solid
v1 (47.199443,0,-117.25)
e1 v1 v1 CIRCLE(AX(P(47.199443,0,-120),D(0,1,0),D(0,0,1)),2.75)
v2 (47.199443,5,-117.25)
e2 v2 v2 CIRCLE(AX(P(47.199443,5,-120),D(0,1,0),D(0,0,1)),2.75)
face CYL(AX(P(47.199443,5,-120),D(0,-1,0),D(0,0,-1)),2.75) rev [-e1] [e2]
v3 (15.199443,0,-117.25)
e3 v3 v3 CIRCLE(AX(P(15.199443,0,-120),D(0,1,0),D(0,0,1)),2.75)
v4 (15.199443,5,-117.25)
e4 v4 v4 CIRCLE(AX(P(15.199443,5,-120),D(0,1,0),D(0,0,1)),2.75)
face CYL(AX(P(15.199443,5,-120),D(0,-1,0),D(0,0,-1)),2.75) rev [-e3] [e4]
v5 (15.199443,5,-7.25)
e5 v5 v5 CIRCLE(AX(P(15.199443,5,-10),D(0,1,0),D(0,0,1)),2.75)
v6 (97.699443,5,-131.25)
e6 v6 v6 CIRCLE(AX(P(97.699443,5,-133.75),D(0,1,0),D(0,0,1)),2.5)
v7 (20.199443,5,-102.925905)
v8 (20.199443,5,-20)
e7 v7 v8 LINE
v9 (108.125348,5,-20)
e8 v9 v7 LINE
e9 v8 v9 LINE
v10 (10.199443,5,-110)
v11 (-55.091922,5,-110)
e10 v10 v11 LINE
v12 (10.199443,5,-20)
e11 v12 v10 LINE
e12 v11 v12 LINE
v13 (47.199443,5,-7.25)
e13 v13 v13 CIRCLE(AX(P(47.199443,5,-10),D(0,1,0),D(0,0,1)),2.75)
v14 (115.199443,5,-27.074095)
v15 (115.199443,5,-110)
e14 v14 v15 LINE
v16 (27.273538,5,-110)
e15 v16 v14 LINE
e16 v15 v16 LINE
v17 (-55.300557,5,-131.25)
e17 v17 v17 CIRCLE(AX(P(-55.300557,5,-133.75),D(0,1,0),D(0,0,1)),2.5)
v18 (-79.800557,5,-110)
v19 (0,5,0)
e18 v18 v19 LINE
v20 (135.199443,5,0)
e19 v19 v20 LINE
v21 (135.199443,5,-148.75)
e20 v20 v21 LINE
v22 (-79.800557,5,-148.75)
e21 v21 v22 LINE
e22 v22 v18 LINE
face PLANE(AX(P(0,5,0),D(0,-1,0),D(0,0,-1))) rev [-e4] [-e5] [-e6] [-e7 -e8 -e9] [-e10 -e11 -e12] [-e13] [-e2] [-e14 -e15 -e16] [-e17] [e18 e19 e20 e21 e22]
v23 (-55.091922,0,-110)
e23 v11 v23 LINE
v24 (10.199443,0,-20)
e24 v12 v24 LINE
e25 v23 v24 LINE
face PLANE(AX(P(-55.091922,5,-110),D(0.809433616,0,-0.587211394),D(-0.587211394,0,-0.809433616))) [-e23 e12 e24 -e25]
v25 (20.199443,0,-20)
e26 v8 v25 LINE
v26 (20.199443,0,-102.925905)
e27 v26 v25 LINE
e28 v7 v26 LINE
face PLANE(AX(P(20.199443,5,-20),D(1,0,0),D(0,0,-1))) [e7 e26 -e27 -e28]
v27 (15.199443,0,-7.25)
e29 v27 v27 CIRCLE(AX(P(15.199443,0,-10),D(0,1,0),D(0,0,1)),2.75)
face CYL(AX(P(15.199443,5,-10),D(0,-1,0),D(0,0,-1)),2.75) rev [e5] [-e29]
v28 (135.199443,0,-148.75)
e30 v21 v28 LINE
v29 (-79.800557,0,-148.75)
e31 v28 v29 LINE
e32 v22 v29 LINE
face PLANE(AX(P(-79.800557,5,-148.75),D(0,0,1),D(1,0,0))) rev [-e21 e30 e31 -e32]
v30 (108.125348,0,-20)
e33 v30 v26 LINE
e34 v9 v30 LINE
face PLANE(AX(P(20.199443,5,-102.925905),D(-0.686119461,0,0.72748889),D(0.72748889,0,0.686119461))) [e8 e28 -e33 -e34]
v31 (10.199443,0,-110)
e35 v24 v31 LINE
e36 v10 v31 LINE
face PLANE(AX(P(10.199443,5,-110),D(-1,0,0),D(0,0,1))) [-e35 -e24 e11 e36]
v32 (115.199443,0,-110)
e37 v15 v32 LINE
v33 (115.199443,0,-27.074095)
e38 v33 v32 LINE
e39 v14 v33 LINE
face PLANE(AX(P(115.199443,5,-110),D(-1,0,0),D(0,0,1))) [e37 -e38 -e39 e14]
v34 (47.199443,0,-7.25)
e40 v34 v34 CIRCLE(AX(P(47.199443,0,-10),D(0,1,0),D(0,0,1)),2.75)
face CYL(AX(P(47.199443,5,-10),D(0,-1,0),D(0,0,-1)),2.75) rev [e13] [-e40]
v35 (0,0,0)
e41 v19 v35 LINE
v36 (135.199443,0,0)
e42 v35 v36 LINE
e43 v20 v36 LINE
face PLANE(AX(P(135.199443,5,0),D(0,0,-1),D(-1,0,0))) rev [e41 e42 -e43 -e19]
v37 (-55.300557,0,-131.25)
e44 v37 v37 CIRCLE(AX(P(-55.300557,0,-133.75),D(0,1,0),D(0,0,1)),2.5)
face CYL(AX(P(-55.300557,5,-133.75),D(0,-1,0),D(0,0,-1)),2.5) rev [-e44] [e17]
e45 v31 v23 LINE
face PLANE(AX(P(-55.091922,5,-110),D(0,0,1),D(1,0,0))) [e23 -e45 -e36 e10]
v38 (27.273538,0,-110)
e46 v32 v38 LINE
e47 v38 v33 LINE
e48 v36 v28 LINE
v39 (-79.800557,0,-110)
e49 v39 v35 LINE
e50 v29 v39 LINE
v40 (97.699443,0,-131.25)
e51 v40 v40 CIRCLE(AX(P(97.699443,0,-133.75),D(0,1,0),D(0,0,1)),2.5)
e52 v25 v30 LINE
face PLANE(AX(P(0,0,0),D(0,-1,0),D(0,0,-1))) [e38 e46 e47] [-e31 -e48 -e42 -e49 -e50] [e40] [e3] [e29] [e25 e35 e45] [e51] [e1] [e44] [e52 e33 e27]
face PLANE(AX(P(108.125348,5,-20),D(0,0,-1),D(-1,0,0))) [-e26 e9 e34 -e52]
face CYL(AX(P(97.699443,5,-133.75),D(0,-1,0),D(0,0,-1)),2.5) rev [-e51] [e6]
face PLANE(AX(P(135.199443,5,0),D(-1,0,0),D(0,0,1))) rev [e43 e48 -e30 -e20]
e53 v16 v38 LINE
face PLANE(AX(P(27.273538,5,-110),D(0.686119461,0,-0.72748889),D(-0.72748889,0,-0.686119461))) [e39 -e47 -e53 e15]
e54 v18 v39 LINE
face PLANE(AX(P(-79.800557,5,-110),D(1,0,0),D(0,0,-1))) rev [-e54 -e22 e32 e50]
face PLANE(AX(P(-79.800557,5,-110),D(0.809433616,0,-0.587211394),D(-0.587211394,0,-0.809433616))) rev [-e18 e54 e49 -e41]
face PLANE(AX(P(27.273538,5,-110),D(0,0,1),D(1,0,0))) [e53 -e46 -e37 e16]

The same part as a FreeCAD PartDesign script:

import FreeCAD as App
import Part
import Sketcher

V = App.Vector

doc = App.newDocument("Part")
params = doc.addObject("Spreadsheet::Sheet", "Params")
for row, (alias, value) in enumerate([
    ("sketch1_diameter", "5 mm"),
    ("sketch1_diameter2", "5.5 mm"),
    ("sketch1_width", "215 mm"),
    ("sketch1_height", "90 mm"),
    ("sketch1_height2", "148.75 mm"),
    ("pad1_length", "5 mm"),
], start=1):
    params.set(f"A{row}", alias)
    params.set(f"B{row}", "=" + value)
    params.setAlias(f"B{row}", alias)

body = doc.addObject("PartDesign::Body", "Body")

sketch1 = doc.addObject("Sketcher::SketchObject", "Sketch")
body.addObject(sketch1)
sketch1.AttachmentSupport = (doc.XZ_Plane, [""])
sketch1.MapMode = "FlatFace"
sketch1.addGeometry(Part.LineSegment(V(0, 0, 0), V(135.2, 0, 0)), False)
sketch1.addGeometry(Part.LineSegment(V(135.2, 0, 0), V(135.2, -148.8, 0)), False)
sketch1.addGeometry(Part.LineSegment(V(135.2, -148.8, 0), V(-79.8, -148.8, 0)), False)
sketch1.addGeometry(Part.LineSegment(V(-79.8, -148.8, 0), V(-79.8, -110, 0)), False)
sketch1.addGeometry(Part.LineSegment(V(-79.8, -110, 0), V(0, 0, 0)), False)
sketch1.addGeometry(Part.Circle(V(47.2, -10, 0), V(0, 0, 1), 2.8), False)
sketch1.addGeometry(Part.LineSegment(V(20.2, -102.9, 0), V(108.1, -20, 0)), False)
sketch1.addGeometry(Part.LineSegment(V(108.1, -20, 0), V(20.2, -20, 0)), False)
sketch1.addGeometry(Part.LineSegment(V(20.2, -20, 0), V(20.2, -102.9, 0)), False)
sketch1.addGeometry(Part.LineSegment(V(27.3, -110, 0), V(115.2, -110, 0)), False)
sketch1.addGeometry(Part.LineSegment(V(115.2, -110, 0), V(115.2, -27.1, 0)), False)
sketch1.addGeometry(Part.LineSegment(V(115.2, -27.1, 0), V(27.3, -110, 0)), False)
sketch1.addGeometry(Part.Circle(V(15.2, -10, 0), V(0, 0, 1), 2.8), False)
sketch1.addGeometry(Part.LineSegment(V(-55.1, -110, 0), V(10.2, -110, 0)), False)
sketch1.addGeometry(Part.LineSegment(V(10.2, -110, 0), V(10.2, -20, 0)), False)
sketch1.addGeometry(Part.LineSegment(V(10.2, -20, 0), V(-55.1, -110, 0)), False)
sketch1.addGeometry(Part.Circle(V(97.7, -133.8, 0), V(0, 0, 1), 2.5), False)
sketch1.addGeometry(Part.Circle(V(47.2, -120, 0), V(0, 0, 1), 2.8), False)
sketch1.addGeometry(Part.Circle(V(15.2, -120, 0), V(0, 0, 1), 2.8), False)
sketch1.addGeometry(Part.Circle(V(-55.3, -133.8, 0), V(0, 0, 1), 2.5), False)
sketch1.addConstraint(Sketcher.Constraint("Coincident", 0, 2, 1, 1))
sketch1.addConstraint(Sketcher.Constraint("Coincident", 1, 2, 2, 1))
sketch1.addConstraint(Sketcher.Constraint("Coincident", 2, 2, 3, 1))
sketch1.addConstraint(Sketcher.Constraint("Coincident", 3, 2, 4, 1))
sketch1.addConstraint(Sketcher.Constraint("Coincident", 4, 2, 0, 1))
sketch1.addConstraint(Sketcher.Constraint("Coincident", 6, 2, 7, 1))
sketch1.addConstraint(Sketcher.Constraint("Coincident", 7, 2, 8, 1))
sketch1.addConstraint(Sketcher.Constraint("Coincident", 8, 2, 6, 1))
sketch1.addConstraint(Sketcher.Constraint("Coincident", 9, 2, 10, 1))
sketch1.addConstraint(Sketcher.Constraint("Coincident", 10, 2, 11, 1))
sketch1.addConstraint(Sketcher.Constraint("Coincident", 11, 2, 9, 1))
sketch1.addConstraint(Sketcher.Constraint("Coincident", 13, 2, 14, 1))
sketch1.addConstraint(Sketcher.Constraint("Coincident", 14, 2, 15, 1))
sketch1.addConstraint(Sketcher.Constraint("Coincident", 15, 2, 13, 1))
sketch1.addConstraint(Sketcher.Constraint("Horizontal", 0))
sketch1.addConstraint(Sketcher.Constraint("Vertical", 1))
sketch1.addConstraint(Sketcher.Constraint("Horizontal", 2))
sketch1.addConstraint(Sketcher.Constraint("Vertical", 3))
sketch1.addConstraint(Sketcher.Constraint("Horizontal", 7))
sketch1.addConstraint(Sketcher.Constraint("Vertical", 8))
sketch1.addConstraint(Sketcher.Constraint("Horizontal", 9))
sketch1.addConstraint(Sketcher.Constraint("Vertical", 10))
sketch1.addConstraint(Sketcher.Constraint("Horizontal", 13))
sketch1.addConstraint(Sketcher.Constraint("Vertical", 14))
sketch1.addConstraint(Sketcher.Constraint("Coincident", 4, 2, -1, 1))
sketch1.addConstraint(Sketcher.Constraint("Equal", 5, 12))
sketch1.addConstraint(Sketcher.Constraint("Equal", 12, 17))
sketch1.addConstraint(Sketcher.Constraint("Equal", 17, 18))
sketch1.addConstraint(Sketcher.Constraint("Equal", 16, 19))
sketch1.addConstraint(Sketcher.Constraint("Parallel", 6, 11))
sketch1.addConstraint(Sketcher.Constraint("Parallel", 4, 15))
sketch1.addConstraint(Sketcher.Constraint("Horizontal", 5, 3, 12, 3))
sketch1.addConstraint(Sketcher.Constraint("Horizontal", 17, 3, 18, 3))
sketch1.addConstraint(Sketcher.Constraint("Horizontal", 16, 3, 19, 3))
sketch1.addConstraint(Sketcher.Constraint("Horizontal", 3, 2, 9, 2))
sketch1.addConstraint(Sketcher.Constraint("Horizontal", 11, 2, 13, 2))
sketch1.addConstraint(Sketcher.Constraint("Horizontal", 7, 2, 14, 2))
sketch1.addConstraint(Sketcher.Constraint("Vertical", 5, 3, 17, 3))
sketch1.addConstraint(Sketcher.Constraint("Vertical", 12, 3, 18, 3))
sketch1.addConstraint(Sketcher.Constraint("Equal", 7, 9))
sketch1.addConstraint(Sketcher.Constraint("Diameter", 16, 5.0))
sketch1.addConstraint(Sketcher.Constraint("Diameter", 5, 5.5))
sketch1.addConstraint(Sketcher.Constraint("DistanceX", 2, 2, 2, 1, 215.0))
sketch1.addConstraint(Sketcher.Constraint("DistanceY", 14, 1, 14, 2, 90.0))
sketch1.addConstraint(Sketcher.Constraint("DistanceY", 5, 3, -1, 1, 10.0))
sketch1.addConstraint(Sketcher.Constraint("DistanceY", 17, 3, -1, 1, 120.0))
sketch1.addConstraint(Sketcher.Constraint("DistanceY", 3, 2, -1, 1, 110.0))
sketch1.addConstraint(Sketcher.Constraint("DistanceX", 12, 3, 5, 3, 32.0))
sketch1.addConstraint(Sketcher.Constraint("DistanceX", 19, 3, 16, 3, 153.0))
sketch1.addConstraint(Sketcher.Constraint("DistanceX", 5, 3, 0, 2, 88.0))
sketch1.addConstraint(Sketcher.Constraint("DistanceY", 1, 2, 16, 3, 15.0))
sketch1.addConstraint(Sketcher.Constraint("DistanceX", 12, 3, 7, 2, 5.0))
sketch1.addConstraint(Sketcher.Constraint("DistanceX", 9, 2, 1, 2, 20.0))
sketch1.addConstraint(Sketcher.Constraint("DistanceX", 13, 2, 18, 3, 5.0))
sketch1.addConstraint(Sketcher.Constraint("DistanceY", 1, 2, 1, 1, 148.75))
sketch1.addConstraint(Sketcher.Constraint("DistanceX", 5, 3, 16, 3, 50.5))
sketch1.addConstraint(Sketcher.Constraint("Distance", 15, 111.188859))
sketch1.addConstraint(Sketcher.Constraint("DistanceX", 7, 2, 7, 1, 87.925905))
sketch1.addConstraint(Sketcher.Constraint("DistanceY", 8, 2, 8, 1, 82.925905))
sketch1.setExpression("Constraints[40]", "Params.sketch1_diameter")
sketch1.setExpression("Constraints[41]", "Params.sketch1_diameter2")
sketch1.setExpression("Constraints[42]", "Params.sketch1_width")
sketch1.setExpression("Constraints[43]", "Params.sketch1_height")
sketch1.setExpression("Constraints[54]", "Params.sketch1_height2")
pad1 = doc.addObject("PartDesign::Pad", "Pad")
body.addObject(pad1)
pad1.Profile = sketch1
pad1.setExpression("Length", "Params.pad1_length")
pad1.Reversed = True

doc.recompute()
